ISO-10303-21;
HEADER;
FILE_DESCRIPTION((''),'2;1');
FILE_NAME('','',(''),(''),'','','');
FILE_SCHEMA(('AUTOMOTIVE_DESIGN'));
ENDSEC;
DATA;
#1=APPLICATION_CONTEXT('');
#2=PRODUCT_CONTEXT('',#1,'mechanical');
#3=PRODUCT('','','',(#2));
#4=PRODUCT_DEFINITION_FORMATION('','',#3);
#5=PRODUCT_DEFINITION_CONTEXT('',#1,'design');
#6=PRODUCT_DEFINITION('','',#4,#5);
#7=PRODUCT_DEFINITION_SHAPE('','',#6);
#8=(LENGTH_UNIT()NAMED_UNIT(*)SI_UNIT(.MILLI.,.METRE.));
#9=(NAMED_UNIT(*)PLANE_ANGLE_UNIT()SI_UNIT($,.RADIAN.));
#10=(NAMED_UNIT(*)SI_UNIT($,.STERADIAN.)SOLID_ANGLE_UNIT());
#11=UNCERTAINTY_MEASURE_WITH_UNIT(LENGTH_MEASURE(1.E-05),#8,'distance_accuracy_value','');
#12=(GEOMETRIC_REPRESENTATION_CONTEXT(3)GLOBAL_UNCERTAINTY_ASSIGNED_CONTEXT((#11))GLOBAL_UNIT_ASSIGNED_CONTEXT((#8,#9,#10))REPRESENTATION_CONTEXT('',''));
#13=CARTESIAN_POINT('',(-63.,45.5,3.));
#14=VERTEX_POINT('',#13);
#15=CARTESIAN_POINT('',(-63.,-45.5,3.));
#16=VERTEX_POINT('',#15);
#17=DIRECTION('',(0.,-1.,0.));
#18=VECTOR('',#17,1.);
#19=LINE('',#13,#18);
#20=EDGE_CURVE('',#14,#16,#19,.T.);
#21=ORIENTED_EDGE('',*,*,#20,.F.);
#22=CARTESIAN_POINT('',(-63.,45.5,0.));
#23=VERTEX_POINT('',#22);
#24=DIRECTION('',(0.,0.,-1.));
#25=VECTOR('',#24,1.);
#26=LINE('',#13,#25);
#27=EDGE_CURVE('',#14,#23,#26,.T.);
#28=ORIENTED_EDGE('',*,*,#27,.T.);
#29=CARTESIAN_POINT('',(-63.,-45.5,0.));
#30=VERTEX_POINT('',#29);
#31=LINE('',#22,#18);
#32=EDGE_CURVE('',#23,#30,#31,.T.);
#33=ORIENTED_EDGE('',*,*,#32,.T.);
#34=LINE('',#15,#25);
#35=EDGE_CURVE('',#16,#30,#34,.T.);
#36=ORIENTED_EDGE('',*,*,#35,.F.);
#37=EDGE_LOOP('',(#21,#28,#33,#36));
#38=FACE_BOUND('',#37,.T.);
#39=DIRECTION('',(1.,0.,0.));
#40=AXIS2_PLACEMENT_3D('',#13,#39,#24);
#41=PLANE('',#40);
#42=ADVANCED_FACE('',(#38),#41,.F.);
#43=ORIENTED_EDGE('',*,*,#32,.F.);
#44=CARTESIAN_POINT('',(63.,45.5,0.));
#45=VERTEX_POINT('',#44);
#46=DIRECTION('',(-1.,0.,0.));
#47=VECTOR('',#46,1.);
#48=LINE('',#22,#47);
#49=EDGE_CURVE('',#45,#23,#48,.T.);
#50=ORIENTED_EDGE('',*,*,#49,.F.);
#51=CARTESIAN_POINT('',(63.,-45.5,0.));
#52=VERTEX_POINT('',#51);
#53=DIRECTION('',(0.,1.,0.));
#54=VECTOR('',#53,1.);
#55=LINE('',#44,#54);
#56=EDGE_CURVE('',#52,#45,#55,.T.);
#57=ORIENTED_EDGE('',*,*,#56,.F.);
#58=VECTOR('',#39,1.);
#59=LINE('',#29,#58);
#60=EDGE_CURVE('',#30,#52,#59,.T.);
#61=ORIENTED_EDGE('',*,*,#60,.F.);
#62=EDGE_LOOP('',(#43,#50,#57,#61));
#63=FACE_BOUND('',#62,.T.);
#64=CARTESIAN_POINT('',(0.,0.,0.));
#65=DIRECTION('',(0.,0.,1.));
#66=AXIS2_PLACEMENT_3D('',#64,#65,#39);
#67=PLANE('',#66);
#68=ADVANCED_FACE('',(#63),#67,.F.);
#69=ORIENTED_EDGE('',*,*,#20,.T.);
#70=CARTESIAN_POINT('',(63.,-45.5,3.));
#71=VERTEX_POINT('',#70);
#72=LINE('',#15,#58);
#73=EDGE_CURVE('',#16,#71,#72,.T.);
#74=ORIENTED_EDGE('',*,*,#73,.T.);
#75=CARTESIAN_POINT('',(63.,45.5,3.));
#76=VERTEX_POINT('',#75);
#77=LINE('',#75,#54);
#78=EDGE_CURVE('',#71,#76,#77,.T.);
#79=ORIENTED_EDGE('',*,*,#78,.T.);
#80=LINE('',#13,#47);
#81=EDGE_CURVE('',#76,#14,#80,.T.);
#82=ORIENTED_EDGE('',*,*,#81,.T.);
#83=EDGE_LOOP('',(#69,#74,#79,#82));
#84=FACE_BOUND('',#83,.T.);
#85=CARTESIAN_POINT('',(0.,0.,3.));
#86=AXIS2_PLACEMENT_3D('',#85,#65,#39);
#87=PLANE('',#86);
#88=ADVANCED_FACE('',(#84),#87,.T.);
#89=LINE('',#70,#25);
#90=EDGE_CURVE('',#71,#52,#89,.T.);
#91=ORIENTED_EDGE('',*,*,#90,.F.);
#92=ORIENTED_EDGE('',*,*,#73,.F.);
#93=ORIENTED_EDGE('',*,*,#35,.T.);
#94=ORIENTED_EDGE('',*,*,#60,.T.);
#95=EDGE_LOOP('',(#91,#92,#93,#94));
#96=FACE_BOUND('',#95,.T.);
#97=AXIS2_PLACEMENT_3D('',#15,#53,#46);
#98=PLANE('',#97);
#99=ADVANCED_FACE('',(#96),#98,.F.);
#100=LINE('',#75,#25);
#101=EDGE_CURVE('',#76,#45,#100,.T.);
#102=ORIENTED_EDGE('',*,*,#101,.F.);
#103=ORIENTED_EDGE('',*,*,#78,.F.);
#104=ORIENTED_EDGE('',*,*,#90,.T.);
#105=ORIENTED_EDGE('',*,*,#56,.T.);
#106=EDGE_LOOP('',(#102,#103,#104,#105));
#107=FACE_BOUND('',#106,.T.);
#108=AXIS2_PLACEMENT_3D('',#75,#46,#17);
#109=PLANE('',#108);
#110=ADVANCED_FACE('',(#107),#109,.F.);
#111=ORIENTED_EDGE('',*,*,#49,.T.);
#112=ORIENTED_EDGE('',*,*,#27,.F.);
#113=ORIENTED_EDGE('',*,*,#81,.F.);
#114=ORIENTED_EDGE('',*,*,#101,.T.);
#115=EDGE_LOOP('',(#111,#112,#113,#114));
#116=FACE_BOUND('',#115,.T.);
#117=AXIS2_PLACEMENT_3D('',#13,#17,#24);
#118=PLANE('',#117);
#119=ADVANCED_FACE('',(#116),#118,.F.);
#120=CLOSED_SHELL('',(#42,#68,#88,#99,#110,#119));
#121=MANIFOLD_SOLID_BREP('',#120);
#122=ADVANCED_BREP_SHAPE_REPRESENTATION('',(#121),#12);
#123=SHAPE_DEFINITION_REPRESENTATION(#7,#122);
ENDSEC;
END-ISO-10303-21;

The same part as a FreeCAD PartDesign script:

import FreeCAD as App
import Part
import Sketcher

V = App.Vector
Q = App.Units.Quantity


def add_polygon(sketch, points):
    """Adds a closed chain of lines whose ends are joined by coincident constraints."""
    first, n = sketch.GeometryCount, len(points)
    for a, b in zip(points, points[1:] + points[:1]):
        sketch.addGeometry(Part.LineSegment(App.Vector(*a, 0), App.Vector(*b, 0)), False)
    for i in range(n):
        sketch.addConstraint(Sketcher.Constraint("Coincident", first + i, 2, first + (i + 1) % n, 1))

doc = App.newDocument("Part")
body = doc.addObject("PartDesign::Body", "Body")

# Sketch on XY plane
sketch1 = body.newObject("Sketcher::SketchObject", "Sketch")
sketch1.AttachmentSupport = (doc.getObject("XY_Plane"), [""])
sketch1.MapMode = "FlatFace"
add_polygon(sketch1, [(-63, 45.5), (-63, -45.5), (63, -45.5), (63, 45.5)])  # lines 0-3
sketch1.addConstraint([
    Sketcher.Constraint("Vertical", 0),
    Sketcher.Constraint("Horizontal", 1),
    Sketcher.Constraint("Vertical", 2),
    Sketcher.Constraint("Horizontal", 3),
    Sketcher.Constraint("Symmetric", 0, 2, 2, 2, -1, 1),
    Sketcher.Constraint("DistanceX", 1, 1, 1, 2, Q("126 mm")),
    Sketcher.Constraint("DistanceY", 0, 2, 0, 1, Q("91 mm")),
])
pad1 = body.newObject("PartDesign::Pad", "Pad")
pad1.Profile = sketch1
pad1.Length = 3

doc.recompute()
